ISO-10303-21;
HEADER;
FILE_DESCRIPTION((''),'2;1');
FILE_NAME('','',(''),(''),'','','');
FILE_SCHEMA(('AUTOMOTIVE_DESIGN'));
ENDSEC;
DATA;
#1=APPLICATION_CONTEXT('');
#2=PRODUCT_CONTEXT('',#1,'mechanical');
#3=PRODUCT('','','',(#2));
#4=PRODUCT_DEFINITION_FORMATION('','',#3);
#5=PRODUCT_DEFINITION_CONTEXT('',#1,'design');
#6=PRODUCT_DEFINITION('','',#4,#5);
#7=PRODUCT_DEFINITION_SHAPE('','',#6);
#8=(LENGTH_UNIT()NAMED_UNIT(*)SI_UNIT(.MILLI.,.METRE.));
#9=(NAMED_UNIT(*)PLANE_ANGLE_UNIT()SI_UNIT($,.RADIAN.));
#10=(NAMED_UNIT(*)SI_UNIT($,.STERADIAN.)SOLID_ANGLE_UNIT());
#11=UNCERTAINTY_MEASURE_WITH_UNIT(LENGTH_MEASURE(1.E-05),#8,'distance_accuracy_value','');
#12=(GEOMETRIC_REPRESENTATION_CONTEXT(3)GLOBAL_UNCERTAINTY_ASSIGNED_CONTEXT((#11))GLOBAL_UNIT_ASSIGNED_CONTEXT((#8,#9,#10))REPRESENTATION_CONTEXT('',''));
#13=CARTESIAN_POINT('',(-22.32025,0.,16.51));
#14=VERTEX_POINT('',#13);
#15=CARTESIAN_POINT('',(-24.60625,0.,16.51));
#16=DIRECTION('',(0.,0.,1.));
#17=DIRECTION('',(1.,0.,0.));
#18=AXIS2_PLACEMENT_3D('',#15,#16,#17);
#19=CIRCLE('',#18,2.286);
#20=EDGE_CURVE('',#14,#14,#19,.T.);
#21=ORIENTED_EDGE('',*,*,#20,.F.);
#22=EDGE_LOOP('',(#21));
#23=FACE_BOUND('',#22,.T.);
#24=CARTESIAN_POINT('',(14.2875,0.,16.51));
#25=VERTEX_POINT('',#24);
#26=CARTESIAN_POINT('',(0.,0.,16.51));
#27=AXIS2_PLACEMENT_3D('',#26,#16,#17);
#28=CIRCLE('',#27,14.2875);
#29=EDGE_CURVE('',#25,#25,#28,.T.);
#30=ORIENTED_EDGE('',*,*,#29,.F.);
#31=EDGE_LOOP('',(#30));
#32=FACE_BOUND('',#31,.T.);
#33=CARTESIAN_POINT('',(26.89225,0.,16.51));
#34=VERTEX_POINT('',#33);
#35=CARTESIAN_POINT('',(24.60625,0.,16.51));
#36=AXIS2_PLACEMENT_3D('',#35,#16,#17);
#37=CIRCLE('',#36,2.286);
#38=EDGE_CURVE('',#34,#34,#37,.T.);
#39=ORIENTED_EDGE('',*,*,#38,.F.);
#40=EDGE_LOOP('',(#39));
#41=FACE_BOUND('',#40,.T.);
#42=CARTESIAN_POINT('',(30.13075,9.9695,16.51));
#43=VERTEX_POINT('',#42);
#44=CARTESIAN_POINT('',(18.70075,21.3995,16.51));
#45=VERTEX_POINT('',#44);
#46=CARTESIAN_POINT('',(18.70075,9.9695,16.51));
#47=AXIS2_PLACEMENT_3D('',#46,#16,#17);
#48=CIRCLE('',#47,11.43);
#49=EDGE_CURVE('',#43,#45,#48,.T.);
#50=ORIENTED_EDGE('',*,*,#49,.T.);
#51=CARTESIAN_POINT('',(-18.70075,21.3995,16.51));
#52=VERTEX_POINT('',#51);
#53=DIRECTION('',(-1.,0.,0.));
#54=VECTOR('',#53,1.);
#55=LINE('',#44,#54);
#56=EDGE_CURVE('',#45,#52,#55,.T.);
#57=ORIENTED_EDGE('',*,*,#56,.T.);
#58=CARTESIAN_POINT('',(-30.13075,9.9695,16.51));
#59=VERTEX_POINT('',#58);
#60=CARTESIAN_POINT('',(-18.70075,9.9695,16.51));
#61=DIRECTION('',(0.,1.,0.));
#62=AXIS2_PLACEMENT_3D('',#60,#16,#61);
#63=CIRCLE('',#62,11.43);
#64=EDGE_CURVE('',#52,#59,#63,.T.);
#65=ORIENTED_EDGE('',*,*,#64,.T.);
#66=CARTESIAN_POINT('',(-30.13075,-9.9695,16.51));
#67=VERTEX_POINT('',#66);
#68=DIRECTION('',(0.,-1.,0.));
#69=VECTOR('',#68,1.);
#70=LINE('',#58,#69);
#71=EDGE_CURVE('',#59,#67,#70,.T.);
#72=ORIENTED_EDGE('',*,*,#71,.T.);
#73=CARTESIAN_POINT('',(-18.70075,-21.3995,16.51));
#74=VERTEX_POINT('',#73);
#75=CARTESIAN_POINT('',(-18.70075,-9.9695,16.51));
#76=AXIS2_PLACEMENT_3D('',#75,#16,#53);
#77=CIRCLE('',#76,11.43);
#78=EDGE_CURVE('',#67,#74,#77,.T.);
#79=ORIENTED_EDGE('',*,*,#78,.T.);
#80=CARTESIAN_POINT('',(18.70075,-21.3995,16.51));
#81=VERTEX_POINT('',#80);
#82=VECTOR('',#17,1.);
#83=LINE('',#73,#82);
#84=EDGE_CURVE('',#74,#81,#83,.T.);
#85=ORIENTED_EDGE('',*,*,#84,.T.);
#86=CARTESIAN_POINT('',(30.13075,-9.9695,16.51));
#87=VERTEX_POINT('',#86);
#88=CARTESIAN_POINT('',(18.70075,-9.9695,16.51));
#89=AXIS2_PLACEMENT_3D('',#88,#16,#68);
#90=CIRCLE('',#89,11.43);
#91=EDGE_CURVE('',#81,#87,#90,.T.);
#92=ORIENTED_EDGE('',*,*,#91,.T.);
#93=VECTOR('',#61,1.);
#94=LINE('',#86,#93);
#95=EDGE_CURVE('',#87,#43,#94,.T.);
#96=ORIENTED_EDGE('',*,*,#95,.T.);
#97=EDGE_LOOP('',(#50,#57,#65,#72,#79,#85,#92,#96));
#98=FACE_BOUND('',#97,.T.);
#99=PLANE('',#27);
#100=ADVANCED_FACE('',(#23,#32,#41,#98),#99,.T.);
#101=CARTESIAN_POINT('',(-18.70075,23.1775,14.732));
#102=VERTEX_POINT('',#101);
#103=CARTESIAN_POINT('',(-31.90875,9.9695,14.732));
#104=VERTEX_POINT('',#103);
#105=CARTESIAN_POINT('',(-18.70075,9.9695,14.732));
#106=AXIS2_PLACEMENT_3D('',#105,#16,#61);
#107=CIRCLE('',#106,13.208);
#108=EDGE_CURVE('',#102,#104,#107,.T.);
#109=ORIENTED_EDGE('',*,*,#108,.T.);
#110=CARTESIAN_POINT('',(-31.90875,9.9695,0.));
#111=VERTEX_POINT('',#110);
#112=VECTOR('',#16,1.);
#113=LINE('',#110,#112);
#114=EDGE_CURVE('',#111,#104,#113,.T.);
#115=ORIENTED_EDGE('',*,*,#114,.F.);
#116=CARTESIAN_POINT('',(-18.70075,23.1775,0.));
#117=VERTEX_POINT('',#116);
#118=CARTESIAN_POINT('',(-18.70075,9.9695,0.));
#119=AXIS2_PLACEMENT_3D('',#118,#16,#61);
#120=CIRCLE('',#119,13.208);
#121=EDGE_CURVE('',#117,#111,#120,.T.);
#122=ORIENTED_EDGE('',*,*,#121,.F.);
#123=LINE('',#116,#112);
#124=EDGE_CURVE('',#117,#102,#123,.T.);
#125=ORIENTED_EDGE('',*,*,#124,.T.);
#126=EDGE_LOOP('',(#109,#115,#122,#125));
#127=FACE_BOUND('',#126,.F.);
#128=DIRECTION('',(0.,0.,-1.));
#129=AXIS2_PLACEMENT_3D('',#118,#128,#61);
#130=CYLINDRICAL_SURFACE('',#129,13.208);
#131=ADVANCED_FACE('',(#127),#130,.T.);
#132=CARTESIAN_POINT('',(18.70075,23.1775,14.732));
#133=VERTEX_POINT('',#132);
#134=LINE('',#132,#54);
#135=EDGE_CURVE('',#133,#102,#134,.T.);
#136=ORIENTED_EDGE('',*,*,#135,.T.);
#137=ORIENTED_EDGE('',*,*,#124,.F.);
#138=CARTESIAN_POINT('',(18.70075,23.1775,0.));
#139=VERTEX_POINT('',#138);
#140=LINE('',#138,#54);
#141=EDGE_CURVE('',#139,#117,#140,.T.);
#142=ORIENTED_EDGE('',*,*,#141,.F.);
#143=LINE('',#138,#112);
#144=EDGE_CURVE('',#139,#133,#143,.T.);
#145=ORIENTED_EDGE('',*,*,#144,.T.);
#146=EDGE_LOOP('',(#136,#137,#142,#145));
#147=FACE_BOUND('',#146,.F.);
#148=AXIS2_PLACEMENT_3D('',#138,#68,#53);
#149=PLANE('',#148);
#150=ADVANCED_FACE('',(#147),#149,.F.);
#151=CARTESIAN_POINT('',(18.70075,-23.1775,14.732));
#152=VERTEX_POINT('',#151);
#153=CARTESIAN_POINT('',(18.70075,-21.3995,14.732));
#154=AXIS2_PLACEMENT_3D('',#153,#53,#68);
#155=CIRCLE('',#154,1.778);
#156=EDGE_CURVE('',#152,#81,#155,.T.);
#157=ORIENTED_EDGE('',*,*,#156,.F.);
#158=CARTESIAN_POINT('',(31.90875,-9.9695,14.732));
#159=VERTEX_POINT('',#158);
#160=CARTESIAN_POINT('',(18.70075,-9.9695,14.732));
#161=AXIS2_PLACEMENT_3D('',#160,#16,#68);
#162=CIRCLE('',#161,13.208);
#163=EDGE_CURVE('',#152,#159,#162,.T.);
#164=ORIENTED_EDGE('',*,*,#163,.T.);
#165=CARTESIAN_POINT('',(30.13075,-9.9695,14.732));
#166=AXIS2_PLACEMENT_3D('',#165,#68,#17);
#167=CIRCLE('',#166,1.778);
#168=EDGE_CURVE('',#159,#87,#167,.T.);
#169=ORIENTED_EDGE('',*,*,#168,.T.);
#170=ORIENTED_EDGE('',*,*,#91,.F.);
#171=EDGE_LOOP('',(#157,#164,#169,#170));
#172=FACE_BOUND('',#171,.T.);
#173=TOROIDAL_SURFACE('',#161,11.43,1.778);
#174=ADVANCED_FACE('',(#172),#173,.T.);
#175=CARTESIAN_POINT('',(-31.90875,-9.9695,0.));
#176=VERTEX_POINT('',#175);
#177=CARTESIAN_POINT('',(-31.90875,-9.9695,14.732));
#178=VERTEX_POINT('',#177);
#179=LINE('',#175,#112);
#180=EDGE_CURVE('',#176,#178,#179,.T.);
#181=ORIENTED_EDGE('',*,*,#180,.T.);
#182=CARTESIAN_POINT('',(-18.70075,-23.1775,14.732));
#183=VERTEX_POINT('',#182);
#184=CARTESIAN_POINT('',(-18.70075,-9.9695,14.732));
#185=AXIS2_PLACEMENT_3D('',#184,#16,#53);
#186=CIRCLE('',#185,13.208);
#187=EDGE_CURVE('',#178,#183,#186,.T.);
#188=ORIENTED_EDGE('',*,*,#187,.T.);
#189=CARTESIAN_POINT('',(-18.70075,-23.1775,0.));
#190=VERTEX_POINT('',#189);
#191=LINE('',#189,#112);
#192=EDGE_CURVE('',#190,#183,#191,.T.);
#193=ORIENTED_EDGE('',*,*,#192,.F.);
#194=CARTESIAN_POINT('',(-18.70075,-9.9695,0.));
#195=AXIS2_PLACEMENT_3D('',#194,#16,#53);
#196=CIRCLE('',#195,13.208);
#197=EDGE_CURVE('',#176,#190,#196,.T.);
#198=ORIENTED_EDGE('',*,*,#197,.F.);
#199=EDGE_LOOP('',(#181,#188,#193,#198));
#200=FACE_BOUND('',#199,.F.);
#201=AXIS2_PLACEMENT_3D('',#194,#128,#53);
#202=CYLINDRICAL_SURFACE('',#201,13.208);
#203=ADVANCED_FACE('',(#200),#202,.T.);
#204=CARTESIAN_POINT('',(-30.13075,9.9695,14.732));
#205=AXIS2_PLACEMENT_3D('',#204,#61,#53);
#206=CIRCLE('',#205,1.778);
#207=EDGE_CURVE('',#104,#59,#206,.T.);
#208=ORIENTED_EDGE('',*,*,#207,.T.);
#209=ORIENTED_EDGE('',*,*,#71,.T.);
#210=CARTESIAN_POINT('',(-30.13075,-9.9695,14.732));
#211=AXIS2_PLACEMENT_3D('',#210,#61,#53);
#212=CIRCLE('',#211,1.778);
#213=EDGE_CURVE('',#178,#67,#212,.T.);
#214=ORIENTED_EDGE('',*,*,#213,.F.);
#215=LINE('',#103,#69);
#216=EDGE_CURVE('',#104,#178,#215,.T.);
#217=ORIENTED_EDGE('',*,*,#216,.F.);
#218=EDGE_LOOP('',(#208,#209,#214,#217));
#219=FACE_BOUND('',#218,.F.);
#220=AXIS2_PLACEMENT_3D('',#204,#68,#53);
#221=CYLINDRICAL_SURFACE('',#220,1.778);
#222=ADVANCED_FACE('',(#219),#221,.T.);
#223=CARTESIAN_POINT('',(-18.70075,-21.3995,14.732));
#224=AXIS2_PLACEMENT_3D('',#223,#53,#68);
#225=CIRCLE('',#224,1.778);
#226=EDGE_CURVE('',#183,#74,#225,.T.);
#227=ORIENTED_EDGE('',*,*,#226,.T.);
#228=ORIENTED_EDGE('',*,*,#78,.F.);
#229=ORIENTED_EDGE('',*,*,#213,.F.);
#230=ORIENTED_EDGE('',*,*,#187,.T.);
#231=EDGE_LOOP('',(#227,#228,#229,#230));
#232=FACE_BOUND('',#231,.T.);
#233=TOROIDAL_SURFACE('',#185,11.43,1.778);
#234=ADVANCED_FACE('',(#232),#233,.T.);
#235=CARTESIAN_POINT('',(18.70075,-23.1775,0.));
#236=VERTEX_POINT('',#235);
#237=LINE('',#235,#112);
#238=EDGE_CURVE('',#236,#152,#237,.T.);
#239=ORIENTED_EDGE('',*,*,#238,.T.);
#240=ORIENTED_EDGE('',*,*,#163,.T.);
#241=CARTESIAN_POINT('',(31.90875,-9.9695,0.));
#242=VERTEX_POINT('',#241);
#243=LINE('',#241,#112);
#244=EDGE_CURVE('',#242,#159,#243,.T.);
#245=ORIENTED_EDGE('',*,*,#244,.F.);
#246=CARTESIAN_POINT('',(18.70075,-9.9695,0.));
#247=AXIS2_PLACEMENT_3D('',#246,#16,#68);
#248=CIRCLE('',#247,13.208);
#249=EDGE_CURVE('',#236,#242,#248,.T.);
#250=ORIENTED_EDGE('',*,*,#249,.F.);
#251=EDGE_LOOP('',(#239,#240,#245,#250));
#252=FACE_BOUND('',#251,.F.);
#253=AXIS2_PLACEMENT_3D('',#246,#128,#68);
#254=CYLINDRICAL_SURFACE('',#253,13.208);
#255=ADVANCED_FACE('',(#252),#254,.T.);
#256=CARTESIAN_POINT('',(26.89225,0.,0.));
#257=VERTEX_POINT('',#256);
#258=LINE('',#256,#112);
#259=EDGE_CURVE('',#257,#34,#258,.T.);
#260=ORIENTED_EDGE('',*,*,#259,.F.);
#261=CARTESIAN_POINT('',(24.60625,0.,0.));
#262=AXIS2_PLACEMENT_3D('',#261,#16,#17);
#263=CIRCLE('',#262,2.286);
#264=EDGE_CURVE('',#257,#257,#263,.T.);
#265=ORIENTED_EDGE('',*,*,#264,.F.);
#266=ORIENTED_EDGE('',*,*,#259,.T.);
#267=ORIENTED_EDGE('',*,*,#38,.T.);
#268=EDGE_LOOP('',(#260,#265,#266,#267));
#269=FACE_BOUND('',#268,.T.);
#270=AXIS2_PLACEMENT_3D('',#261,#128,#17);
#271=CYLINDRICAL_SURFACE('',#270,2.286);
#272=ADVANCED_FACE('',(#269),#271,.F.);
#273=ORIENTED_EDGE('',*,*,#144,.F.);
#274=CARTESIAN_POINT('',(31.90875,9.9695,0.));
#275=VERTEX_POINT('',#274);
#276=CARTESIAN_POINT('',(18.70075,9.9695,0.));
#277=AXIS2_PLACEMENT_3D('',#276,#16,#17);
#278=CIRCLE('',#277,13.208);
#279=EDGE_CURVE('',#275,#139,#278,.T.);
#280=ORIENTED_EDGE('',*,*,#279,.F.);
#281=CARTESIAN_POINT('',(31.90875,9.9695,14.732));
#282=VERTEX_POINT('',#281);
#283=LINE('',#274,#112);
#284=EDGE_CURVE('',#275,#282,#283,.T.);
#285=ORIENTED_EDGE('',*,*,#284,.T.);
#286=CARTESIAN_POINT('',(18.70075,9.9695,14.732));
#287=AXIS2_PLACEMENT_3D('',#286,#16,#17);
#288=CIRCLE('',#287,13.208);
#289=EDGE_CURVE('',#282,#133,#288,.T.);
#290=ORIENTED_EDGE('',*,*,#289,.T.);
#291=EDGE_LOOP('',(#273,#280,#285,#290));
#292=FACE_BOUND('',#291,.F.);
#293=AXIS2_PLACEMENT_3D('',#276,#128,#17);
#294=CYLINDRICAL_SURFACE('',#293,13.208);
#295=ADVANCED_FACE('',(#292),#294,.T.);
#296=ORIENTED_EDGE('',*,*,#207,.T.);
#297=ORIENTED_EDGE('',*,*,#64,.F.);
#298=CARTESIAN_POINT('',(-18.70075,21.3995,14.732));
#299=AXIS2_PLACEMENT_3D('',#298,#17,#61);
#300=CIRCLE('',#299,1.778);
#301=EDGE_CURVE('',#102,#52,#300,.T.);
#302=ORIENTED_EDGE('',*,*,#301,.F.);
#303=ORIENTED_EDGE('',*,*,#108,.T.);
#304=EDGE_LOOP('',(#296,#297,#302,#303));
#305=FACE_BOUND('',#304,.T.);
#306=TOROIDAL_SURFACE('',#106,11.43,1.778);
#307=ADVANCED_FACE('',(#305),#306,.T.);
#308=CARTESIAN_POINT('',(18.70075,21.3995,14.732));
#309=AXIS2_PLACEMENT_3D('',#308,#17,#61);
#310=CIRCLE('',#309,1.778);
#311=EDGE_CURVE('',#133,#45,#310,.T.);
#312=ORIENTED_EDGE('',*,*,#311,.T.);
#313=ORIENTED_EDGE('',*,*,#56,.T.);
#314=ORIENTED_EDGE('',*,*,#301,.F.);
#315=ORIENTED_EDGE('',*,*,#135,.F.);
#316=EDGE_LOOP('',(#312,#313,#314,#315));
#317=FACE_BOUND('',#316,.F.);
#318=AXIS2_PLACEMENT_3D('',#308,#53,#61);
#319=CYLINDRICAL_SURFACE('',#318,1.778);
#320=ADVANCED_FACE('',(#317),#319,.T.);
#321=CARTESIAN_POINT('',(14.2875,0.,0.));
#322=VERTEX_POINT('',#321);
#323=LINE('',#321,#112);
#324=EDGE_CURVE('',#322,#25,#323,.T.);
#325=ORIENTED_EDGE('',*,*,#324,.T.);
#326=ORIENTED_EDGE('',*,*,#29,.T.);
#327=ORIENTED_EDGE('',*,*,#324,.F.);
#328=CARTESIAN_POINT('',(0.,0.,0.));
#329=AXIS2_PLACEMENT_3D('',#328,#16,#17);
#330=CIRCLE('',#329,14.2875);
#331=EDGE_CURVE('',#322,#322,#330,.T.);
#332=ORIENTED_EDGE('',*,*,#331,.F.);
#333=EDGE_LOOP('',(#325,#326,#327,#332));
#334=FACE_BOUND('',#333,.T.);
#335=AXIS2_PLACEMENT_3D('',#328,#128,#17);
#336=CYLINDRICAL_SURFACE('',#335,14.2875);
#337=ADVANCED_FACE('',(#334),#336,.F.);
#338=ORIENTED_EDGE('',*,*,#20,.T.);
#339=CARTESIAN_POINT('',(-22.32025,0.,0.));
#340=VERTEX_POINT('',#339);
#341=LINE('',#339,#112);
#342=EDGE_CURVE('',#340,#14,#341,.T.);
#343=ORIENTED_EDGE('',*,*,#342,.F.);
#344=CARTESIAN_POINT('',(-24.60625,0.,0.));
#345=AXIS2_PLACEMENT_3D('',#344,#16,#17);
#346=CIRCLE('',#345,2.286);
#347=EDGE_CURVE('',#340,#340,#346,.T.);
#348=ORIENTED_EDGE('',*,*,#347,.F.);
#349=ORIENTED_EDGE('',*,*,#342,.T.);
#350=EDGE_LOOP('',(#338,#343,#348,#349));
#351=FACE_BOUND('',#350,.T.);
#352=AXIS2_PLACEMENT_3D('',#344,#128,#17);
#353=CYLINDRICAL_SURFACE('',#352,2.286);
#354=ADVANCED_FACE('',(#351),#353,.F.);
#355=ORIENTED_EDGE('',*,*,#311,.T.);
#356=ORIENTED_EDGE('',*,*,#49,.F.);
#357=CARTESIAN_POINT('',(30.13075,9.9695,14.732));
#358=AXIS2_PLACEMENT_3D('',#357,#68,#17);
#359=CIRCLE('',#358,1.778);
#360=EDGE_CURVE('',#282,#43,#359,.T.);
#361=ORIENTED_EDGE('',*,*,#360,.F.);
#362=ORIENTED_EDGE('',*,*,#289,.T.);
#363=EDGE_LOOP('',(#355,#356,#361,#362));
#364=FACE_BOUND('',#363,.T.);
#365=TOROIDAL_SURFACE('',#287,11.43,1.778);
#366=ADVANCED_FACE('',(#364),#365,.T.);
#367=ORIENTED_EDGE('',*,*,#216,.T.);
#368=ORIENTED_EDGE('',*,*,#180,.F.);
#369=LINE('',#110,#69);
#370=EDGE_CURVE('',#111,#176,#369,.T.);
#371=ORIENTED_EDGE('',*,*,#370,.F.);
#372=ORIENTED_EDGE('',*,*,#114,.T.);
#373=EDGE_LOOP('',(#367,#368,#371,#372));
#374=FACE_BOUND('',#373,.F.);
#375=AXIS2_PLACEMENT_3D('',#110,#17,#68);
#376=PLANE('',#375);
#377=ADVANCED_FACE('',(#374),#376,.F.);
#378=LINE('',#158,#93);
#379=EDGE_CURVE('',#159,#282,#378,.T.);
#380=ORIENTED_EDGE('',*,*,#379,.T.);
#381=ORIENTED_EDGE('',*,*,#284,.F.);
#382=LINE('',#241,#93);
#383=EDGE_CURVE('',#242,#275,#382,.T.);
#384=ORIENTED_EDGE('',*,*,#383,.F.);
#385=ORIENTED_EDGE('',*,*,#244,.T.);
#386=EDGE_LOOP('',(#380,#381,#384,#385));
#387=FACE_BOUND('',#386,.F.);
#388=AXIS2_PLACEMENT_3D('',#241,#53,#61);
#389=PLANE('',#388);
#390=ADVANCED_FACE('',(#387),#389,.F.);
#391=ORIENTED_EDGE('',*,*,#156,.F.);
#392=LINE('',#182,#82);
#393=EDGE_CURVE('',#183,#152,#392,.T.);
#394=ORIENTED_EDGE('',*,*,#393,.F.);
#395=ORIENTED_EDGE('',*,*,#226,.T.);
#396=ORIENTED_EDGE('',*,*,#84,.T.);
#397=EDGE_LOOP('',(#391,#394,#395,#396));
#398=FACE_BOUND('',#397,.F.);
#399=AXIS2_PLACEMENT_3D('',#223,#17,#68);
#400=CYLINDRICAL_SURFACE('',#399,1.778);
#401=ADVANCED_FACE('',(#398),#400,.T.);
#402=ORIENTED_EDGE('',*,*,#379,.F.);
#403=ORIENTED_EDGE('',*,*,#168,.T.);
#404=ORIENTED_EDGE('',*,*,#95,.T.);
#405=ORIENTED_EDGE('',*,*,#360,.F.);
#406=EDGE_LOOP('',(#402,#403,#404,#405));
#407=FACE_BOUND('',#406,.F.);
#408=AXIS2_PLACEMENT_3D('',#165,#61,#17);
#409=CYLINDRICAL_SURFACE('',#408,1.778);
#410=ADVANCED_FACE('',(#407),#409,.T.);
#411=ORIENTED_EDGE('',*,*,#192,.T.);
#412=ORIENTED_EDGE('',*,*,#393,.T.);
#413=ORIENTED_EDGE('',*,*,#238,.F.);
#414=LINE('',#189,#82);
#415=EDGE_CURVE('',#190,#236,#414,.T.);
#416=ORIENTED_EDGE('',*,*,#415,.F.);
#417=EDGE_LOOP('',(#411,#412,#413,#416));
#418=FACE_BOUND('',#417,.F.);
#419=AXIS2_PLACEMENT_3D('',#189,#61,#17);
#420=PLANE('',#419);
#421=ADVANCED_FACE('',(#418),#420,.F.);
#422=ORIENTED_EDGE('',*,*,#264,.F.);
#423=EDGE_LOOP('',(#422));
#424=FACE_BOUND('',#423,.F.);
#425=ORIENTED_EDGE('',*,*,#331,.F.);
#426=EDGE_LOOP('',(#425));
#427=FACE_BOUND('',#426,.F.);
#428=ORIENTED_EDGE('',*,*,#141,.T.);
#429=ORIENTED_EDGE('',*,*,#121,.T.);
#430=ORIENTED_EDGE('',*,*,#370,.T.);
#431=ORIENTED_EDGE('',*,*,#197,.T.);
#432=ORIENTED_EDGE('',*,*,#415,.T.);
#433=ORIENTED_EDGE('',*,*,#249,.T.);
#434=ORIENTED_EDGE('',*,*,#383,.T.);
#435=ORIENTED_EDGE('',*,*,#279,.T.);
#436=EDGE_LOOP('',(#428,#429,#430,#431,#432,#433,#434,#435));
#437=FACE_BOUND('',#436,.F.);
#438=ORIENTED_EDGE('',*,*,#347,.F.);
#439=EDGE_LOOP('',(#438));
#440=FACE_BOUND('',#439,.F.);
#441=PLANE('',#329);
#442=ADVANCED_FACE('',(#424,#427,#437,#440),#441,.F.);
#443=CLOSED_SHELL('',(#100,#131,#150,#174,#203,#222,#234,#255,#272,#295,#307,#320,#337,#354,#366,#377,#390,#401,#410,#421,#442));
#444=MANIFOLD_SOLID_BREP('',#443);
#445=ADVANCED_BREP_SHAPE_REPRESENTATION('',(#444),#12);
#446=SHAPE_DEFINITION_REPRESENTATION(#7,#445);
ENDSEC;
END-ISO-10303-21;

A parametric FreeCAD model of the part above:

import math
import FreeCAD as App
import Part
import Sketcher

V = App.Vector
Q = App.Units.Quantity


def edges_at(feature, points):
    """Names of the edges that pass closest to the given points."""
    edges = feature.Shape.Edges
    near = lambda p: min(range(len(edges)), key=lambda i: edges[i].distToShape(Part.Vertex(*p))[0])
    return sorted({f"Edge{near(p) + 1}" for p in points})

doc = App.newDocument("Part")
body = doc.addObject("PartDesign::Body", "Body")

sketch1 = body.newObject("Sketcher::SketchObject", "Sketch")
sketch1.AttachmentSupport = (doc.getObject("XY_Plane"), [""])
sketch1.MapMode = "FlatFace"
sketch1.addGeometry(Part.LineSegment(V(-18.70075, -23.1775, 0), V(18.70075, -23.1775, 0)), False)
sketch1.addGeometry(Part.ArcOfCircle(Part.Circle(V(18.70075, -9.9695, 0), V(0, 0, 1), 13.208), math.radians(-90), math.radians(0)), False)
sketch1.addGeometry(Part.LineSegment(V(31.90875, -9.9695, 0), V(31.90875, 9.9695, 0)), False)
sketch1.addGeometry(Part.ArcOfCircle(Part.Circle(V(18.70075, 9.9695, 0), V(0, 0, 1), 13.208), math.radians(0), math.radians(90)), False)
sketch1.addGeometry(Part.LineSegment(V(18.70075, 23.1775, 0), V(-18.70075, 23.1775, 0)), False)
sketch1.addGeometry(Part.ArcOfCircle(Part.Circle(V(-18.70075, 9.9695, 0), V(0, 0, 1), 13.208), math.radians(90), math.radians(180)), False)
sketch1.addGeometry(Part.LineSegment(V(-31.90875, 9.9695, 0), V(-31.90875, -9.9695, 0)), False)
sketch1.addGeometry(Part.ArcOfCircle(Part.Circle(V(-18.70075, -9.9695, 0), V(0, 0, 1), 13.208), math.radians(180), math.radians(270)), False)
sketch1.addGeometry(Part.Circle(V(-24.60625, 0, 0), V(0, 0, 1), 2.286), False)
sketch1.addGeometry(Part.Circle(V(0, 0, 0), V(0, 0, 1), 14.2875), False)
sketch1.addGeometry(Part.Circle(V(24.60625, 0, 0), V(0, 0, 1), 2.286), False)
sketch1.addConstraint(Sketcher.Constraint("Tangent", 0, 2, 1, 1))
sketch1.addConstraint(Sketcher.Constraint("Tangent", 1, 2, 2, 1))
sketch1.addConstraint(Sketcher.Constraint("Tangent", 2, 2, 3, 1))
sketch1.addConstraint(Sketcher.Constraint("Tangent", 3, 2, 4, 1))
sketch1.addConstraint(Sketcher.Constraint("Tangent", 4, 2, 5, 1))
sketch1.addConstraint(Sketcher.Constraint("Tangent", 5, 2, 6, 1))
sketch1.addConstraint(Sketcher.Constraint("Tangent", 6, 2, 7, 1))
sketch1.addConstraint(Sketcher.Constraint("Tangent", 7, 2, 0, 1))
sketch1.addConstraint(Sketcher.Constraint("Horizontal", 0))
sketch1.addConstraint(Sketcher.Constraint("Vertical", 2))
sketch1.addConstraint(Sketcher.Constraint("Horizontal", 4))
sketch1.addConstraint(Sketcher.Constraint("Vertical", 6))
sketch1.addConstraint(Sketcher.Constraint("Coincident", 9, 3, -1, 1))
sketch1.addConstraint(Sketcher.Constraint("Equal", 1, 3))
sketch1.addConstraint(Sketcher.Constraint("Equal", 3, 5))
sketch1.addConstraint(Sketcher.Constraint("Equal", 5, 7))
sketch1.addConstraint(Sketcher.Constraint("Equal", 8, 10))
sketch1.addConstraint(Sketcher.Constraint("Symmetric", 1, 3, 5, 3, -1, 1))
sketch1.addConstraint(Sketcher.Constraint("Symmetric", 8, 3, 10, 3, -1, 1))
sketch1.addConstraint(Sketcher.Constraint("PointOnObject", 8, 3, -1))
sketch1.addConstraint(Sketcher.Constraint("Diameter", 8, Q("0.18 in")))
sketch1.addConstraint(Sketcher.Constraint("Radius", 1, Q("0.52 in")))
sketch1.addConstraint(Sketcher.Constraint("Diameter", 9, Q("1.125 in")))
sketch1.addConstraint(Sketcher.Constraint("DistanceY", 2, 1, 2, 2, Q("0.785 in")))
sketch1.addConstraint(Sketcher.Constraint("DistanceX", 0, 1, 0, 2, Q("1.4725 in")))
sketch1.addConstraint(Sketcher.Constraint("DistanceX", 8, 3, -1, 1, Q("0.96875 in")))
pad1 = body.newObject("PartDesign::Pad", "Pad")
pad1.Profile = sketch1
pad1.Length = Q("0.65 in")
doc.recompute()

fillet = body.newObject("PartDesign::Fillet", "Fillet")
fillet.Base = (pad1, edges_at(pad1, [(28.04, 19.309, 16.51)]))
fillet.Radius = Q("0.07 in")

doc.recompute()
